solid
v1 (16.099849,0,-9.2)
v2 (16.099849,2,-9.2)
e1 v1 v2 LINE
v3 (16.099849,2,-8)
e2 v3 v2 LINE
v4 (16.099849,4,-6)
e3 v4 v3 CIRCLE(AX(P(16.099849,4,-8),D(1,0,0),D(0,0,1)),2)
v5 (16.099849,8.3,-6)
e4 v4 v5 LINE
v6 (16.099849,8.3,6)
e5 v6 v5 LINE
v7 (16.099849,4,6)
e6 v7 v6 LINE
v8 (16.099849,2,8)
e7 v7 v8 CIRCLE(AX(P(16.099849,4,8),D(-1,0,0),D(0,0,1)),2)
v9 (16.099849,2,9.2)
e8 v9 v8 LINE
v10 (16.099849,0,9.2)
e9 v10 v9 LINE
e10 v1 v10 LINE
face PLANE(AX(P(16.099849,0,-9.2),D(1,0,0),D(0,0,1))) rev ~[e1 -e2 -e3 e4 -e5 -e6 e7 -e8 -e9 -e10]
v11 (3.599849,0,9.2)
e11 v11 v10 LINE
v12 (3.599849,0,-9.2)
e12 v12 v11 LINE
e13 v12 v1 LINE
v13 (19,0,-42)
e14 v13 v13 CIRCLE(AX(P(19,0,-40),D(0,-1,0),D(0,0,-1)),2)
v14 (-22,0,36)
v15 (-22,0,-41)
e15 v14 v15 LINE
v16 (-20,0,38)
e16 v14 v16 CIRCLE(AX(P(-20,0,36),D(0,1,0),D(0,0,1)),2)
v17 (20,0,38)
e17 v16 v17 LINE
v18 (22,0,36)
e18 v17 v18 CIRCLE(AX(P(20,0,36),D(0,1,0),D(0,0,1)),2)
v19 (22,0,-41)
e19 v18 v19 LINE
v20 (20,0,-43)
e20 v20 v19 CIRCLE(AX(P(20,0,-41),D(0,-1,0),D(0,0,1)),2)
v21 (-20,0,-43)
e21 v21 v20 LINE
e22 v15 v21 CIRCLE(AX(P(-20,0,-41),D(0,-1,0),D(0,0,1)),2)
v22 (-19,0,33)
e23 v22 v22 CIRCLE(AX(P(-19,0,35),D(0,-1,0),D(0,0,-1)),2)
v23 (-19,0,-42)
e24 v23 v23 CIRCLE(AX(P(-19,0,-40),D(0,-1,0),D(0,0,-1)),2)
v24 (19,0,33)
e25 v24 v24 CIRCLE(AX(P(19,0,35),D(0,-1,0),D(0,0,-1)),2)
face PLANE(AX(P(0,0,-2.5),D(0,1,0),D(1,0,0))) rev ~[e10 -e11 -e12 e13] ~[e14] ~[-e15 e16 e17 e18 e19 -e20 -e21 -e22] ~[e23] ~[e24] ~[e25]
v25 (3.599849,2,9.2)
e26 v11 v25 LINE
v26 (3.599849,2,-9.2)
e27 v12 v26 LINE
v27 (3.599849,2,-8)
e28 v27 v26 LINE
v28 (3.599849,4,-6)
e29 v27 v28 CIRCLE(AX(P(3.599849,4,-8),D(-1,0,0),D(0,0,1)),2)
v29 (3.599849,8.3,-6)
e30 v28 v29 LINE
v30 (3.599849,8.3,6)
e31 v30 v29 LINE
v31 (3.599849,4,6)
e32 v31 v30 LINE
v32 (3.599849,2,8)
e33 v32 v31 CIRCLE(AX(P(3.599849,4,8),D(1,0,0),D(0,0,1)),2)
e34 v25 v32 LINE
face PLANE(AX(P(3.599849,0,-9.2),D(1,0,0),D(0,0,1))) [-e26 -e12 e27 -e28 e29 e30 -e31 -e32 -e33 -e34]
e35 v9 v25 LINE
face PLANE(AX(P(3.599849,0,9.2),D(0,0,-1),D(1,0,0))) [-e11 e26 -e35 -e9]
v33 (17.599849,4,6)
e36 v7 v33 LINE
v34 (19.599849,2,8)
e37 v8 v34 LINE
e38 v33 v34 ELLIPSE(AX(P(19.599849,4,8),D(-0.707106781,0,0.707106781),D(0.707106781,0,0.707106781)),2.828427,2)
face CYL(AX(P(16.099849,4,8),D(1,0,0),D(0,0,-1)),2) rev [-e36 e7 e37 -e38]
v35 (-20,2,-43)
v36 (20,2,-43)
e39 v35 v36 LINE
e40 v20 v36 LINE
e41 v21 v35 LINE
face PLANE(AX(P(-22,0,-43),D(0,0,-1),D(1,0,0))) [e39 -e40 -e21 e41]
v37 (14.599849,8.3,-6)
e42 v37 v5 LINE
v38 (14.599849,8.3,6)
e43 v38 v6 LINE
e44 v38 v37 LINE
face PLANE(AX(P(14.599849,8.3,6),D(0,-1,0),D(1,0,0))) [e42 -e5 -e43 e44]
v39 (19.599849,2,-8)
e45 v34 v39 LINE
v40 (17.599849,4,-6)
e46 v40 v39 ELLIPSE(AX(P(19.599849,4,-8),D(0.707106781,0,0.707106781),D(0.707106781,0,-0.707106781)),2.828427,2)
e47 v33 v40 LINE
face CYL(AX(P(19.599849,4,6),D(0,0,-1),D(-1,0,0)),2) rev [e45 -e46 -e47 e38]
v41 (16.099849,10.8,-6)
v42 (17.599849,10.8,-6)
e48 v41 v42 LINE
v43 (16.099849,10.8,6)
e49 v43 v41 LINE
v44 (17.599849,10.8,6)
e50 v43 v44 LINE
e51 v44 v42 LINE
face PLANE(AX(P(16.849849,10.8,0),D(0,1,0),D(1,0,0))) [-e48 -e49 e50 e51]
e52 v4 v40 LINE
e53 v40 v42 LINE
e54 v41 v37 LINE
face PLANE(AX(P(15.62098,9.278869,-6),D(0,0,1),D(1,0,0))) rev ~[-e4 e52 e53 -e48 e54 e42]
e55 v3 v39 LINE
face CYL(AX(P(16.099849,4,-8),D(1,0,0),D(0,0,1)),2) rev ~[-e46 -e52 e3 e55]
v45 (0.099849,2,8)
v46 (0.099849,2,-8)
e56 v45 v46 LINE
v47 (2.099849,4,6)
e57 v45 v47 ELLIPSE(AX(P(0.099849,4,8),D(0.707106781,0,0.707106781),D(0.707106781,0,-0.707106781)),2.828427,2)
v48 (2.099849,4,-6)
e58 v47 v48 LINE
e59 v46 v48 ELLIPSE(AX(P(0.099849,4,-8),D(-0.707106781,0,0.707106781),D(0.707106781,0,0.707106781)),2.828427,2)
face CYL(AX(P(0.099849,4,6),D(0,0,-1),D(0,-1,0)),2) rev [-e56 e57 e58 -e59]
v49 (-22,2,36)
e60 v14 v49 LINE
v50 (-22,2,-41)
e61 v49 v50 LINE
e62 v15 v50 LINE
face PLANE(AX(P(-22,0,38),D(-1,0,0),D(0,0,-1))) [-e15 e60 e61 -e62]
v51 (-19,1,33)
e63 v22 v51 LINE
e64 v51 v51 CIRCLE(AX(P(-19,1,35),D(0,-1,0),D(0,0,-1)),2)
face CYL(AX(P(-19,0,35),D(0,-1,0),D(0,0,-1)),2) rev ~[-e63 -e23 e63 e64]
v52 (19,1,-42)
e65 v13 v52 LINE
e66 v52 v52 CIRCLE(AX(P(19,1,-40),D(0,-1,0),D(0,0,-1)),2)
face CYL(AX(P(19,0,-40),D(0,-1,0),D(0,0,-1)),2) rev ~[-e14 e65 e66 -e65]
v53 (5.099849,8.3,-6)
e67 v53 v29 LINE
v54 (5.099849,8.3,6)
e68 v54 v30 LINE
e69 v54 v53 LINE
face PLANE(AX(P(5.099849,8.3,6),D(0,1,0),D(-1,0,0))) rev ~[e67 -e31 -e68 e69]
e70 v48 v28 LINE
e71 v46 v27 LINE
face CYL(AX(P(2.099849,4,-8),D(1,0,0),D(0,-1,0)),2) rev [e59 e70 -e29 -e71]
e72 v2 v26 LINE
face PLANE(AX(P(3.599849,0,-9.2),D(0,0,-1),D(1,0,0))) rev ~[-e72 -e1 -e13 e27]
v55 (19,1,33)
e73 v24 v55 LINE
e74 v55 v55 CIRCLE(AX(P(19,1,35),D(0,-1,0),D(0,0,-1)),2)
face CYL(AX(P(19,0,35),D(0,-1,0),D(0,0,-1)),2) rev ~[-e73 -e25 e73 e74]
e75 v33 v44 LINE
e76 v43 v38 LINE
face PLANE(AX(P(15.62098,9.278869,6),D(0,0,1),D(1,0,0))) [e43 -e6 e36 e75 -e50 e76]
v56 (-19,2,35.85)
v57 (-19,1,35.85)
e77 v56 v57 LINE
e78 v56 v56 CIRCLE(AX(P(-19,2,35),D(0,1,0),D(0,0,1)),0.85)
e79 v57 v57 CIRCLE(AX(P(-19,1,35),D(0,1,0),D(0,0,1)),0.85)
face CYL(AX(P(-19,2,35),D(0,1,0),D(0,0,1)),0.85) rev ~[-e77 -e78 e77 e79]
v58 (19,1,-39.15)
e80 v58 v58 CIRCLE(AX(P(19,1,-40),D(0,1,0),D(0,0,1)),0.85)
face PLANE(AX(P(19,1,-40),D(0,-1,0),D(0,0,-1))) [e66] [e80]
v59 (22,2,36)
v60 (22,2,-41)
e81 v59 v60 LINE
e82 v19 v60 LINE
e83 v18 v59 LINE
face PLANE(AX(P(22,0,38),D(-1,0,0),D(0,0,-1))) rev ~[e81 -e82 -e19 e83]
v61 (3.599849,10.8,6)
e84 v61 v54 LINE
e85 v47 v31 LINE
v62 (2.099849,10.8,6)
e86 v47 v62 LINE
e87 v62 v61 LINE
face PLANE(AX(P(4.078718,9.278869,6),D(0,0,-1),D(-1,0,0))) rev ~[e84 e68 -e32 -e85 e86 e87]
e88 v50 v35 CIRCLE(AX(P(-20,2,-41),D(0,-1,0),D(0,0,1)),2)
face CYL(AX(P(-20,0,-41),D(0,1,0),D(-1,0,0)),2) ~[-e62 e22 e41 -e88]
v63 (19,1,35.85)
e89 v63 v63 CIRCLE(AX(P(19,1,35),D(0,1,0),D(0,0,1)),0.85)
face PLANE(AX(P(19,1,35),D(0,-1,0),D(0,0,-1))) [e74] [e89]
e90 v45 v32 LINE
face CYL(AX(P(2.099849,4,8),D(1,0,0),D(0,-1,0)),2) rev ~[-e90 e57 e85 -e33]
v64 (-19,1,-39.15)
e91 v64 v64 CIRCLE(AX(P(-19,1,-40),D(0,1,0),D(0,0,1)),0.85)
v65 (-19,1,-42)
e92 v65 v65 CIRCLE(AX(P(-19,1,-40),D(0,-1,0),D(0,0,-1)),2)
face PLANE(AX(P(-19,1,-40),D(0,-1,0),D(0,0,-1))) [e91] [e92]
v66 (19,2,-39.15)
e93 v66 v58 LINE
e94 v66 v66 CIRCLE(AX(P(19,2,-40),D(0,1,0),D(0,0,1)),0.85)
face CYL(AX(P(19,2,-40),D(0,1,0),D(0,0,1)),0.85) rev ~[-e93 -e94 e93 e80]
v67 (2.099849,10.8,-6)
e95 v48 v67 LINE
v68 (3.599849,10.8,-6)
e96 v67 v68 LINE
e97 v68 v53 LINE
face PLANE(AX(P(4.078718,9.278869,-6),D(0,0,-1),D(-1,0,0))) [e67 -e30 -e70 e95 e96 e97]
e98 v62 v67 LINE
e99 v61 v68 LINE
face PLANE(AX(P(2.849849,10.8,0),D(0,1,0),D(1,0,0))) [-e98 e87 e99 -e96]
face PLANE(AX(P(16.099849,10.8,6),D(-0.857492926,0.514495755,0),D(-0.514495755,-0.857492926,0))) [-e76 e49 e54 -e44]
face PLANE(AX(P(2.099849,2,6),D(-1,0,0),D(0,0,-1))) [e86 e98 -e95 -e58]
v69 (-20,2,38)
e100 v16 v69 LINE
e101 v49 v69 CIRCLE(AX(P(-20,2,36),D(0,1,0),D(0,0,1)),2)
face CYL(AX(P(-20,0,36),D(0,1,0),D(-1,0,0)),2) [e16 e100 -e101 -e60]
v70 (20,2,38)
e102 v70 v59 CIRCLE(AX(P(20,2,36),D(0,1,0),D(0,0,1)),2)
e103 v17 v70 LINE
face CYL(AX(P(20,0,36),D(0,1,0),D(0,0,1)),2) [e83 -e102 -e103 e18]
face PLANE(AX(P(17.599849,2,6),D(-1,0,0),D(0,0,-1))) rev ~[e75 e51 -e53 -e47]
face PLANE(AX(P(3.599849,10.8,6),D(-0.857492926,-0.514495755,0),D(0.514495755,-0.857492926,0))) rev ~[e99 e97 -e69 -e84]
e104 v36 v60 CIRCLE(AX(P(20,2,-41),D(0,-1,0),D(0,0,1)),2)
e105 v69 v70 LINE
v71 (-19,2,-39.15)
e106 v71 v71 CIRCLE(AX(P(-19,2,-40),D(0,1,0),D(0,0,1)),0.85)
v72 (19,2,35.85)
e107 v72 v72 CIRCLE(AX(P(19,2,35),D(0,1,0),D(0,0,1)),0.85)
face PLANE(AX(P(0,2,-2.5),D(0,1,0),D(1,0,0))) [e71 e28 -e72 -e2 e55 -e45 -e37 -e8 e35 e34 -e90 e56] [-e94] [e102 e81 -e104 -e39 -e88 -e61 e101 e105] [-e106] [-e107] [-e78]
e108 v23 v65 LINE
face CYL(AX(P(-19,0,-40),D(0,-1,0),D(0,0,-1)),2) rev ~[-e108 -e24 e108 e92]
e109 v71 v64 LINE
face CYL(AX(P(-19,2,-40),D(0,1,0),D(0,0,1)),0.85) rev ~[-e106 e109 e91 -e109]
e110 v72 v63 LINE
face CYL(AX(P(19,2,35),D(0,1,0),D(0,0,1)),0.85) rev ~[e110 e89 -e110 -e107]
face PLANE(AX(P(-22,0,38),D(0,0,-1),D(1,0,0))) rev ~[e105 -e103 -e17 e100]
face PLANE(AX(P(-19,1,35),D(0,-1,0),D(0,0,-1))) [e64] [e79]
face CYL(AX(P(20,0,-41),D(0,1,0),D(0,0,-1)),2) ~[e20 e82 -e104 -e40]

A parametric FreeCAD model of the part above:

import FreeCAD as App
import Part
import Sketcher


def edges_at(feature, points):
    """Names of the edges that pass closest to the given points."""
    edges = feature.Shape.Edges
    near = lambda p: min(range(len(edges)), key=lambda i: edges[i].distToShape(Part.Vertex(*p))[0])
    return sorted({f"Edge{near(p) + 1}" for p in points})


def add_polygon(sketch, points):
    """Adds a closed chain of lines whose ends are joined by coincident constraints."""
    first, n = sketch.GeometryCount, len(points)
    for a, b in zip(points, points[1:] + points[:1]):
        sketch.addGeometry(Part.LineSegment(App.Vector(*a, 0), App.Vector(*b, 0)), False)
    for i in range(n):
        sketch.addConstraint(Sketcher.Constraint("Coincident", first + i, 2, first + (i + 1) % n, 1))

doc = App.newDocument("Part")
body = doc.addObject("PartDesign::Body", "Body")

# Sketch on XZ plane
sketch1 = body.newObject("Sketcher::SketchObject", "Sketch")
sketch1.AttachmentSupport = (doc.getObject("XZ_Plane"), [""])
sketch1.MapMode = "FlatFace"
add_polygon(sketch1, [(-22, -43), (-22, 38), (22, 38), (22, -43)])  # lines 0-3
sketch1.addConstraint([
    Sketcher.Constraint("Vertical", 0),
    Sketcher.Constraint("Horizontal", 1),
    Sketcher.Constraint("Vertical", 2),
    Sketcher.Constraint("Horizontal", 3),
    Sketcher.Constraint("DistanceX", 1, 1, 1, 2, 44.0),
    Sketcher.Constraint("DistanceY", 0, 1, 0, 2, 81.0),
    Sketcher.Constraint("DistanceX", 0, 2, -1, 1, 22.0),
    Sketcher.Constraint("DistanceY", -1, 1, 0, 2, 38.0),
])
pad1 = body.newObject("PartDesign::Pad", "Pad")
pad1.Profile = sketch1
pad1.Length = 2
pad1.Reversed = True

# Sketch on XZ plane
sketch2 = body.newObject("Sketcher::SketchObject", "Sketch001")
sketch2.AttachmentSupport = (doc.getObject("XZ_Plane"), [""])
sketch2.MapMode = "FlatFace"
add_polygon(sketch2, [(4, 9), (4, -9), (16, -9), (16, 9)])  # lines 0-3
sketch2.addConstraint([
    Sketcher.Constraint("Vertical", 0),
    Sketcher.Constraint("Horizontal", 1),
    Sketcher.Constraint("Vertical", 2),
    Sketcher.Constraint("Horizontal", 3),
    Sketcher.Constraint("DistanceX", 1, 1, 1, 2, 12.5),
    Sketcher.Constraint("DistanceY", 0, 2, 0, 1, 18.4),
    Sketcher.Constraint("DistanceY", 0, 2, -1, 1, 9.2),
    Sketcher.Constraint("DistanceX", -1, 1, 0, 2, 3.599849),
])
pocket1 = body.newObject("PartDesign::Pocket", "Pocket")
pocket1.Profile = sketch2
pocket1.Length = 7.5

# Sketch on XZ plane
sketch3 = body.newObject("Sketcher::SketchObject", "Sketch002")
sketch3.AttachmentSupport = (doc.getObject("XZ_Plane"), [""])
sketch3.MapMode = "FlatFace"
sketch3.AttachmentOffset = App.Placement(App.Vector(0, 0, -2), App.Rotation())
add_polygon(sketch3, [(2.1, -6), (2.1, 6), (3.6, 6), (3.6, -6)])  # lines 0-3
add_polygon(sketch3, [(16.1, -6), (16.1, 6), (17.6, 6), (17.6, -6)])  # lines 4-7
sketch3.addConstraint([
    Sketcher.Constraint("Vertical", 0),
    Sketcher.Constraint("Horizontal", 1),
    Sketcher.Constraint("Vertical", 2),
    Sketcher.Constraint("Horizontal", 3),
    Sketcher.Constraint("Vertical", 4),
    Sketcher.Constraint("Horizontal", 5),
    Sketcher.Constraint("Vertical", 6),
    Sketcher.Constraint("Horizontal", 7),
    Sketcher.Constraint("Horizontal", 1, 2, 4, 2),
    Sketcher.Constraint("Horizontal", 3, 2, 6, 2),
    Sketcher.Constraint("Equal", 3, 5),
    Sketcher.Constraint("DistanceY", 0, 1, 0, 2, 12.0),
    Sketcher.Constraint("DistanceX", 1, 1, 1, 2, 1.5),
    Sketcher.Constraint("DistanceY", -1, 1, 0, 2, 6.0),
    Sketcher.Constraint("DistanceX", 0, 2, 4, 2, 14.0),
    Sketcher.Constraint("DistanceX", -1, 1, 0, 2, 2.099849),
])
pad2 = body.newObject("PartDesign::Pad", "Pad001")
pad2.Profile = sketch3
pad2.Length = 8.8
pad2.Reversed = True

# Sketch on XY plane
sketch4 = body.newObject("Sketcher::SketchObject", "Sketch003")
sketch4.AttachmentSupport = (doc.getObject("XY_Plane"), [""])
sketch4.MapMode = "FlatFace"
sketch4.AttachmentOffset = App.Placement(App.Vector(0, 0, 6), App.Rotation())
add_polygon(sketch4, [(5.1, 8.3), (3.6, 10.8), (3.6, 8.3)])  # lines 0-2
sketch4.addConstraint([
    Sketcher.Constraint("Vertical", 1),
    Sketcher.Constraint("Horizontal", 2),
    Sketcher.Constraint("DistanceX", 2, 1, 2, 2, 1.5),
    Sketcher.Constraint("DistanceY", 1, 2, 1, 1, 2.5),
    Sketcher.Constraint("DistanceY", -1, 1, 0, 2, 10.8),
    Sketcher.Constraint("DistanceX", -1, 1, 0, 2, 3.599849),
])
pad3 = body.newObject("PartDesign::Pad", "Pad002")
pad3.Profile = sketch4
pad3.Length = 12
pad3.Reversed = True

# Sketch on XY plane
sketch5 = body.newObject("Sketcher::SketchObject", "Sketch004")
sketch5.AttachmentSupport = (doc.getObject("XY_Plane"), [""])
sketch5.MapMode = "FlatFace"
sketch5.AttachmentOffset = App.Placement(App.Vector(0, 0, 6), App.Rotation())
add_polygon(sketch5, [(16.1, 10.8), (14.6, 8.3), (16.1, 8.3)])  # lines 0-2
sketch5.addConstraint([
    Sketcher.Constraint("Horizontal", 1),
    Sketcher.Constraint("Vertical", 2),
    Sketcher.Constraint("DistanceX", 1, 1, 1, 2, 1.5),
    Sketcher.Constraint("DistanceY", 2, 1, 2, 2, 2.5),
    Sketcher.Constraint("DistanceY", -1, 1, 0, 2, 8.3),
    Sketcher.Constraint("DistanceX", -1, 1, 0, 2, 14.599849),
])
pad4 = body.newObject("PartDesign::Pad", "Pad003")
pad4.Profile = sketch5
pad4.Length = 12
pad4.Reversed = True
doc.recompute()

fillet = body.newObject("PartDesign::Fillet", "Fillet")
fillet.Base = (pad4, edges_at(pad4, [
    (2.85, 2, -6),
    (2.1, 2, 0),
    (2.85, 2, 6),
    (16.85, 2, -6),
    (16.85, 2, 6),
    (17.6, 2, 0),
]))
fillet.Radius = 2
doc.recompute()

fillet2 = body.newObject("PartDesign::Fillet", "Fillet001")
fillet2.Base = (fillet, edges_at(fillet, [
    (-22, 1, -43),
    (22, 1, -43),
    (22, 1, 38),
    (-22, 1, 38),
]))
fillet2.Radius = 2

# Sketch on XZ plane
sketch6 = body.newObject("Sketcher::SketchObject", "Sketch005")
sketch6.AttachmentSupport = (doc.getObject("XZ_Plane"), [""])
sketch6.MapMode = "FlatFace"
sketch6.AttachmentOffset = App.Placement(App.Vector(0, 0, -2), App.Rotation())
sketch6.addGeometry([
    Part.Circle(App.Vector(-19, -40, 0), App.Vector(0, 0, 1), 0.8),
    Part.Circle(App.Vector(19, -40, 0), App.Vector(0, 0, 1), 0.8),
    Part.Circle(App.Vector(19, 35, 0), App.Vector(0, 0, 1), 0.8),
    Part.Circle(App.Vector(-19, 35, 0), App.Vector(0, 0, 1), 0.8),
], False)
sketch6.addConstraint([
    Sketcher.Constraint("Equal", 0, 1),
    Sketcher.Constraint("Equal", 1, 2),
    Sketcher.Constraint("Equal", 2, 3),
    Sketcher.Constraint("Symmetric", 0, 3, 1, 3, -2),
    Sketcher.Constraint("Symmetric", 2, 3, 3, 3, -2),
    Sketcher.Constraint("Vertical", 1, 3, 2, 3),
    Sketcher.Constraint("Diameter", 0, 1.7),
    Sketcher.Constraint("DistanceX", 0, 3, -1, 1, 19.0),
    Sketcher.Constraint("DistanceY", 0, 3, -1, 1, 40.0),
    Sketcher.Constraint("DistanceY", -1, 1, 2, 3, 35.0),
])
pocket2 = body.newObject("PartDesign::Pocket", "Pocket001")
pocket2.Profile = sketch6
pocket2.Length = 12
pocket2.Reversed = True

# Sketch on XZ plane
sketch7 = body.newObject("Sketcher::SketchObject", "Sketch006")
sketch7.AttachmentSupport = (doc.getObject("XZ_Plane"), [""])
sketch7.MapMode = "FlatFace"
sketch7.addGeometry([
    Part.Circle(App.Vector(-19, 35, 0), App.Vector(0, 0, 1), 2),
    Part.Circle(App.Vector(19, 35, 0), App.Vector(0, 0, 1), 2),
    Part.Circle(App.Vector(-19, -40, 0), App.Vector(0, 0, 1), 2),
    Part.Circle(App.Vector(19, -40, 0), App.Vector(0, 0, 1), 2),
], False)
sketch7.addConstraint([
    Sketcher.Constraint("Equal", 0, 1),
    Sketcher.Constraint("Equal", 1, 2),
    Sketcher.Constraint("Equal", 2, 3),
    Sketcher.Constraint("Symmetric", 0, 3, 1, 3, -2),
    Sketcher.Constraint("Symmetric", 2, 3, 3, 3, -2),
    Sketcher.Constraint("Vertical", 0, 3, 2, 3),
    Sketcher.Constraint("Diameter", 0, 4.0),
    Sketcher.Constraint("DistanceX", 0, 3, -1, 1, 19.0),
    Sketcher.Constraint("DistanceY", -1, 1, 0, 3, 35.0),
    Sketcher.Constraint("DistanceY", 2, 3, -1, 1, 40.0),
])
pocket3 = body.newObject("PartDesign::Pocket", "Pocket002")
pocket3.Profile = sketch7
pocket3.Length = 1

doc.recompute()
